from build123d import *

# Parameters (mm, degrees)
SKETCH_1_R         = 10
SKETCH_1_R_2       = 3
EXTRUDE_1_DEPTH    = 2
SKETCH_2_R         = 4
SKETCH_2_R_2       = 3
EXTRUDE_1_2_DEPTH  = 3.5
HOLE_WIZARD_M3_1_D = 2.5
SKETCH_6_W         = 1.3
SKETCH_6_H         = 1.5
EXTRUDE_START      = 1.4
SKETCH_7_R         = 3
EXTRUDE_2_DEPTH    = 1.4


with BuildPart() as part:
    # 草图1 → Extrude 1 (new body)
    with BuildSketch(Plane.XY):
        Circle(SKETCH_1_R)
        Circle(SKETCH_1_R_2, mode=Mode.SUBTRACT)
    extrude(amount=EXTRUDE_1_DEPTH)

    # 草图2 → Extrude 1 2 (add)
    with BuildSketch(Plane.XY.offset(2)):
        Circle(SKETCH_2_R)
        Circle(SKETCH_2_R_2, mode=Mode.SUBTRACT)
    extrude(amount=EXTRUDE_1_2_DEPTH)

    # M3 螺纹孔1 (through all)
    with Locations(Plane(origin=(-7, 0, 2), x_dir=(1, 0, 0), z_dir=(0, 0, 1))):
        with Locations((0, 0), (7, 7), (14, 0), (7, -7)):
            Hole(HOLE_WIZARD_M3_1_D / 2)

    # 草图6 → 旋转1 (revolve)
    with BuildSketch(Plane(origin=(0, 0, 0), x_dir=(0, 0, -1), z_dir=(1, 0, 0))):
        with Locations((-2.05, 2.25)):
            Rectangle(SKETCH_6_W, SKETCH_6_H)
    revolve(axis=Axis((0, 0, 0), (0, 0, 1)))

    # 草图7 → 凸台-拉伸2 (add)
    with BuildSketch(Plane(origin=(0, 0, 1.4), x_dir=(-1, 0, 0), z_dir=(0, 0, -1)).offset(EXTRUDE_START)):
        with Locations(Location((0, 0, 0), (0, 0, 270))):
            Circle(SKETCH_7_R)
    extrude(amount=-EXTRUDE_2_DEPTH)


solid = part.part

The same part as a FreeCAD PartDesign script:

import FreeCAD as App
import Part
import Sketcher
from FreeCAD import Vector


def add_polygon(sketch, points):
    """Adds a closed chain of lines whose ends are joined by coincident constraints."""
    first, n = sketch.GeometryCount, len(points)
    for a, b in zip(points, points[1:] + points[:1]):
        sketch.addGeometry(Part.LineSegment(App.Vector(*a, 0), App.Vector(*b, 0)), False)
    for i in range(n):
        sketch.addConstraint(Sketcher.Constraint("Coincident", first + i, 2, first + (i + 1) % n, 1))

doc = App.newDocument("Part")
body = doc.addObject("PartDesign::Body", "Body")

# Sketch on XY plane
sketch1 = body.newObject("Sketcher::SketchObject", "Sketch")
sketch1.AttachmentSupport = (doc.getObject("XY_Plane"), [""])
sketch1.MapMode = "FlatFace"
sketch1.addGeometry([
    Part.Circle(Vector(0, 0, 0), Vector(0, 0, 1), 10),
    Part.Circle(Vector(0, 0, 0), Vector(0, 0, 1), 3),
], False)
sketch1.addConstraint([
    Sketcher.Constraint("Coincident", 0, 3, -1, 1),
    Sketcher.Constraint("Coincident", 1, 3, -1, 1),
    Sketcher.Constraint("Diameter", 0, 20.0),
    Sketcher.Constraint("Diameter", 1, 6.0),
])
pad1 = body.newObject("PartDesign::Pad", "Pad")
pad1.Profile = sketch1
pad1.Length = 2

# Sketch on XY plane
sketch2 = body.newObject("Sketcher::SketchObject", "Sketch001")
sketch2.AttachmentSupport = (doc.getObject("XY_Plane"), [""])
sketch2.MapMode = "FlatFace"
sketch2.AttachmentOffset = App.Placement(Vector(0, 0, 2), App.Rotation())
sketch2.addGeometry([
    Part.Circle(Vector(0, 0, 0), Vector(0, 0, 1), 4),
    Part.Circle(Vector(0, 0, 0), Vector(0, 0, 1), 3),
], False)
sketch2.addConstraint([
    Sketcher.Constraint("Coincident", 0, 3, -1, 1),
    Sketcher.Constraint("Coincident", 1, 3, -1, 1),
    Sketcher.Constraint("Diameter", 0, 8.0),
    Sketcher.Constraint("Diameter", 1, 6.0),
])
pad2 = body.newObject("PartDesign::Pad", "Pad001")
pad2.Profile = sketch2
pad2.Length = 3.5

# Sketch on XY plane
sketch3 = body.newObject("Sketcher::SketchObject", "Sketch002")
sketch3.AttachmentSupport = (doc.getObject("XY_Plane"), [""])
sketch3.MapMode = "FlatFace"
sketch3.AttachmentOffset = App.Placement(Vector(0, 0, 2), App.Rotation())
sketch3.addGeometry([
    Part.Circle(Vector(-7, 0, 0), Vector(0, 0, 1), 1.2),
    Part.Circle(Vector(0, 7, 0), Vector(0, 0, 1), 1.2),
    Part.Circle(Vector(7, 0, 0), Vector(0, 0, 1), 1.2),
    Part.Circle(Vector(0, -7, 0), Vector(0, 0, 1), 1.2),
], False)
sketch3.addConstraint([
    Sketcher.Constraint("Equal", 0, 1),
    Sketcher.Constraint("Equal", 1, 2),
    Sketcher.Constraint("Equal", 2, 3),
    Sketcher.Constraint("Symmetric", 0, 3, 2, 3, -1, 1),
    Sketcher.Constraint("Symmetric", 1, 3, 3, 3, -1, 1),
    Sketcher.Constraint("PointOnObject", 0, 3, -1),
    Sketcher.Constraint("PointOnObject", 1, 3, -2),
    Sketcher.Constraint("Diameter", 0, 2.5),
    Sketcher.Constraint("DistanceX", 0, 3, -1, 1, 7.0),
    Sketcher.Constraint("DistanceY", -1, 1, 1, 3, 7.0),
])
doc.recompute()
hole = body.newObject("PartDesign::Hole", "Hole")
hole.Profile = sketch3
hole.ThreadType = "None"
hole.Diameter = 2.5
hole.DepthType = "ThroughAll"

# Sketch on YZ plane
sketch4 = body.newObject("Sketcher::SketchObject", "Sketch003")
sketch4.AttachmentSupport = (doc.getObject("YZ_Plane"), [""])
sketch4.MapMode = "FlatFace"
add_polygon(sketch4, [(3, 2.7), (1.5, 2.7), (1.5, 1.4), (3, 1.4)])  # lines 0-3
sketch4.addConstraint([
    Sketcher.Constraint("Horizontal", 0),
    Sketcher.Constraint("Vertical", 1),
    Sketcher.Constraint("Horizontal", 2),
    Sketcher.Constraint("Vertical", 3),
    Sketcher.Constraint("DistanceX", 0, 2, 0, 1, 1.5),
    Sketcher.Constraint("DistanceY", 1, 2, 1, 1, 1.3),
    Sketcher.Constraint("DistanceX", -1, 1, 2, 2, 3.0),
    Sketcher.Constraint("DistanceY", -1, 1, 0, 2, 2.7),
])
revolution = body.newObject("PartDesign::Revolution", "Revolution")
revolution.Profile = sketch4
revolution.ReferenceAxis = (sketch4, ["V_Axis"])
revolution.Angle = 360

# Sketch on XY plane
sketch5 = body.newObject("Sketcher::SketchObject", "Sketch004")
sketch5.AttachmentSupport = (doc.getObject("XY_Plane"), [""])
sketch5.MapMode = "FlatFace"
sketch5.addGeometry(Part.Circle(Vector(0, 0, 0), Vector(0, 0, 1), 3), False)
sketch5.addConstraint([
    Sketcher.Constraint("Coincident", 0, 3, -1, 1),
    Sketcher.Constraint("Diameter", 0, 6.0),
])
pad3 = body.newObject("PartDesign::Pad", "Pad002")
pad3.Profile = sketch5
pad3.Length = 1.4

doc.recompute()
